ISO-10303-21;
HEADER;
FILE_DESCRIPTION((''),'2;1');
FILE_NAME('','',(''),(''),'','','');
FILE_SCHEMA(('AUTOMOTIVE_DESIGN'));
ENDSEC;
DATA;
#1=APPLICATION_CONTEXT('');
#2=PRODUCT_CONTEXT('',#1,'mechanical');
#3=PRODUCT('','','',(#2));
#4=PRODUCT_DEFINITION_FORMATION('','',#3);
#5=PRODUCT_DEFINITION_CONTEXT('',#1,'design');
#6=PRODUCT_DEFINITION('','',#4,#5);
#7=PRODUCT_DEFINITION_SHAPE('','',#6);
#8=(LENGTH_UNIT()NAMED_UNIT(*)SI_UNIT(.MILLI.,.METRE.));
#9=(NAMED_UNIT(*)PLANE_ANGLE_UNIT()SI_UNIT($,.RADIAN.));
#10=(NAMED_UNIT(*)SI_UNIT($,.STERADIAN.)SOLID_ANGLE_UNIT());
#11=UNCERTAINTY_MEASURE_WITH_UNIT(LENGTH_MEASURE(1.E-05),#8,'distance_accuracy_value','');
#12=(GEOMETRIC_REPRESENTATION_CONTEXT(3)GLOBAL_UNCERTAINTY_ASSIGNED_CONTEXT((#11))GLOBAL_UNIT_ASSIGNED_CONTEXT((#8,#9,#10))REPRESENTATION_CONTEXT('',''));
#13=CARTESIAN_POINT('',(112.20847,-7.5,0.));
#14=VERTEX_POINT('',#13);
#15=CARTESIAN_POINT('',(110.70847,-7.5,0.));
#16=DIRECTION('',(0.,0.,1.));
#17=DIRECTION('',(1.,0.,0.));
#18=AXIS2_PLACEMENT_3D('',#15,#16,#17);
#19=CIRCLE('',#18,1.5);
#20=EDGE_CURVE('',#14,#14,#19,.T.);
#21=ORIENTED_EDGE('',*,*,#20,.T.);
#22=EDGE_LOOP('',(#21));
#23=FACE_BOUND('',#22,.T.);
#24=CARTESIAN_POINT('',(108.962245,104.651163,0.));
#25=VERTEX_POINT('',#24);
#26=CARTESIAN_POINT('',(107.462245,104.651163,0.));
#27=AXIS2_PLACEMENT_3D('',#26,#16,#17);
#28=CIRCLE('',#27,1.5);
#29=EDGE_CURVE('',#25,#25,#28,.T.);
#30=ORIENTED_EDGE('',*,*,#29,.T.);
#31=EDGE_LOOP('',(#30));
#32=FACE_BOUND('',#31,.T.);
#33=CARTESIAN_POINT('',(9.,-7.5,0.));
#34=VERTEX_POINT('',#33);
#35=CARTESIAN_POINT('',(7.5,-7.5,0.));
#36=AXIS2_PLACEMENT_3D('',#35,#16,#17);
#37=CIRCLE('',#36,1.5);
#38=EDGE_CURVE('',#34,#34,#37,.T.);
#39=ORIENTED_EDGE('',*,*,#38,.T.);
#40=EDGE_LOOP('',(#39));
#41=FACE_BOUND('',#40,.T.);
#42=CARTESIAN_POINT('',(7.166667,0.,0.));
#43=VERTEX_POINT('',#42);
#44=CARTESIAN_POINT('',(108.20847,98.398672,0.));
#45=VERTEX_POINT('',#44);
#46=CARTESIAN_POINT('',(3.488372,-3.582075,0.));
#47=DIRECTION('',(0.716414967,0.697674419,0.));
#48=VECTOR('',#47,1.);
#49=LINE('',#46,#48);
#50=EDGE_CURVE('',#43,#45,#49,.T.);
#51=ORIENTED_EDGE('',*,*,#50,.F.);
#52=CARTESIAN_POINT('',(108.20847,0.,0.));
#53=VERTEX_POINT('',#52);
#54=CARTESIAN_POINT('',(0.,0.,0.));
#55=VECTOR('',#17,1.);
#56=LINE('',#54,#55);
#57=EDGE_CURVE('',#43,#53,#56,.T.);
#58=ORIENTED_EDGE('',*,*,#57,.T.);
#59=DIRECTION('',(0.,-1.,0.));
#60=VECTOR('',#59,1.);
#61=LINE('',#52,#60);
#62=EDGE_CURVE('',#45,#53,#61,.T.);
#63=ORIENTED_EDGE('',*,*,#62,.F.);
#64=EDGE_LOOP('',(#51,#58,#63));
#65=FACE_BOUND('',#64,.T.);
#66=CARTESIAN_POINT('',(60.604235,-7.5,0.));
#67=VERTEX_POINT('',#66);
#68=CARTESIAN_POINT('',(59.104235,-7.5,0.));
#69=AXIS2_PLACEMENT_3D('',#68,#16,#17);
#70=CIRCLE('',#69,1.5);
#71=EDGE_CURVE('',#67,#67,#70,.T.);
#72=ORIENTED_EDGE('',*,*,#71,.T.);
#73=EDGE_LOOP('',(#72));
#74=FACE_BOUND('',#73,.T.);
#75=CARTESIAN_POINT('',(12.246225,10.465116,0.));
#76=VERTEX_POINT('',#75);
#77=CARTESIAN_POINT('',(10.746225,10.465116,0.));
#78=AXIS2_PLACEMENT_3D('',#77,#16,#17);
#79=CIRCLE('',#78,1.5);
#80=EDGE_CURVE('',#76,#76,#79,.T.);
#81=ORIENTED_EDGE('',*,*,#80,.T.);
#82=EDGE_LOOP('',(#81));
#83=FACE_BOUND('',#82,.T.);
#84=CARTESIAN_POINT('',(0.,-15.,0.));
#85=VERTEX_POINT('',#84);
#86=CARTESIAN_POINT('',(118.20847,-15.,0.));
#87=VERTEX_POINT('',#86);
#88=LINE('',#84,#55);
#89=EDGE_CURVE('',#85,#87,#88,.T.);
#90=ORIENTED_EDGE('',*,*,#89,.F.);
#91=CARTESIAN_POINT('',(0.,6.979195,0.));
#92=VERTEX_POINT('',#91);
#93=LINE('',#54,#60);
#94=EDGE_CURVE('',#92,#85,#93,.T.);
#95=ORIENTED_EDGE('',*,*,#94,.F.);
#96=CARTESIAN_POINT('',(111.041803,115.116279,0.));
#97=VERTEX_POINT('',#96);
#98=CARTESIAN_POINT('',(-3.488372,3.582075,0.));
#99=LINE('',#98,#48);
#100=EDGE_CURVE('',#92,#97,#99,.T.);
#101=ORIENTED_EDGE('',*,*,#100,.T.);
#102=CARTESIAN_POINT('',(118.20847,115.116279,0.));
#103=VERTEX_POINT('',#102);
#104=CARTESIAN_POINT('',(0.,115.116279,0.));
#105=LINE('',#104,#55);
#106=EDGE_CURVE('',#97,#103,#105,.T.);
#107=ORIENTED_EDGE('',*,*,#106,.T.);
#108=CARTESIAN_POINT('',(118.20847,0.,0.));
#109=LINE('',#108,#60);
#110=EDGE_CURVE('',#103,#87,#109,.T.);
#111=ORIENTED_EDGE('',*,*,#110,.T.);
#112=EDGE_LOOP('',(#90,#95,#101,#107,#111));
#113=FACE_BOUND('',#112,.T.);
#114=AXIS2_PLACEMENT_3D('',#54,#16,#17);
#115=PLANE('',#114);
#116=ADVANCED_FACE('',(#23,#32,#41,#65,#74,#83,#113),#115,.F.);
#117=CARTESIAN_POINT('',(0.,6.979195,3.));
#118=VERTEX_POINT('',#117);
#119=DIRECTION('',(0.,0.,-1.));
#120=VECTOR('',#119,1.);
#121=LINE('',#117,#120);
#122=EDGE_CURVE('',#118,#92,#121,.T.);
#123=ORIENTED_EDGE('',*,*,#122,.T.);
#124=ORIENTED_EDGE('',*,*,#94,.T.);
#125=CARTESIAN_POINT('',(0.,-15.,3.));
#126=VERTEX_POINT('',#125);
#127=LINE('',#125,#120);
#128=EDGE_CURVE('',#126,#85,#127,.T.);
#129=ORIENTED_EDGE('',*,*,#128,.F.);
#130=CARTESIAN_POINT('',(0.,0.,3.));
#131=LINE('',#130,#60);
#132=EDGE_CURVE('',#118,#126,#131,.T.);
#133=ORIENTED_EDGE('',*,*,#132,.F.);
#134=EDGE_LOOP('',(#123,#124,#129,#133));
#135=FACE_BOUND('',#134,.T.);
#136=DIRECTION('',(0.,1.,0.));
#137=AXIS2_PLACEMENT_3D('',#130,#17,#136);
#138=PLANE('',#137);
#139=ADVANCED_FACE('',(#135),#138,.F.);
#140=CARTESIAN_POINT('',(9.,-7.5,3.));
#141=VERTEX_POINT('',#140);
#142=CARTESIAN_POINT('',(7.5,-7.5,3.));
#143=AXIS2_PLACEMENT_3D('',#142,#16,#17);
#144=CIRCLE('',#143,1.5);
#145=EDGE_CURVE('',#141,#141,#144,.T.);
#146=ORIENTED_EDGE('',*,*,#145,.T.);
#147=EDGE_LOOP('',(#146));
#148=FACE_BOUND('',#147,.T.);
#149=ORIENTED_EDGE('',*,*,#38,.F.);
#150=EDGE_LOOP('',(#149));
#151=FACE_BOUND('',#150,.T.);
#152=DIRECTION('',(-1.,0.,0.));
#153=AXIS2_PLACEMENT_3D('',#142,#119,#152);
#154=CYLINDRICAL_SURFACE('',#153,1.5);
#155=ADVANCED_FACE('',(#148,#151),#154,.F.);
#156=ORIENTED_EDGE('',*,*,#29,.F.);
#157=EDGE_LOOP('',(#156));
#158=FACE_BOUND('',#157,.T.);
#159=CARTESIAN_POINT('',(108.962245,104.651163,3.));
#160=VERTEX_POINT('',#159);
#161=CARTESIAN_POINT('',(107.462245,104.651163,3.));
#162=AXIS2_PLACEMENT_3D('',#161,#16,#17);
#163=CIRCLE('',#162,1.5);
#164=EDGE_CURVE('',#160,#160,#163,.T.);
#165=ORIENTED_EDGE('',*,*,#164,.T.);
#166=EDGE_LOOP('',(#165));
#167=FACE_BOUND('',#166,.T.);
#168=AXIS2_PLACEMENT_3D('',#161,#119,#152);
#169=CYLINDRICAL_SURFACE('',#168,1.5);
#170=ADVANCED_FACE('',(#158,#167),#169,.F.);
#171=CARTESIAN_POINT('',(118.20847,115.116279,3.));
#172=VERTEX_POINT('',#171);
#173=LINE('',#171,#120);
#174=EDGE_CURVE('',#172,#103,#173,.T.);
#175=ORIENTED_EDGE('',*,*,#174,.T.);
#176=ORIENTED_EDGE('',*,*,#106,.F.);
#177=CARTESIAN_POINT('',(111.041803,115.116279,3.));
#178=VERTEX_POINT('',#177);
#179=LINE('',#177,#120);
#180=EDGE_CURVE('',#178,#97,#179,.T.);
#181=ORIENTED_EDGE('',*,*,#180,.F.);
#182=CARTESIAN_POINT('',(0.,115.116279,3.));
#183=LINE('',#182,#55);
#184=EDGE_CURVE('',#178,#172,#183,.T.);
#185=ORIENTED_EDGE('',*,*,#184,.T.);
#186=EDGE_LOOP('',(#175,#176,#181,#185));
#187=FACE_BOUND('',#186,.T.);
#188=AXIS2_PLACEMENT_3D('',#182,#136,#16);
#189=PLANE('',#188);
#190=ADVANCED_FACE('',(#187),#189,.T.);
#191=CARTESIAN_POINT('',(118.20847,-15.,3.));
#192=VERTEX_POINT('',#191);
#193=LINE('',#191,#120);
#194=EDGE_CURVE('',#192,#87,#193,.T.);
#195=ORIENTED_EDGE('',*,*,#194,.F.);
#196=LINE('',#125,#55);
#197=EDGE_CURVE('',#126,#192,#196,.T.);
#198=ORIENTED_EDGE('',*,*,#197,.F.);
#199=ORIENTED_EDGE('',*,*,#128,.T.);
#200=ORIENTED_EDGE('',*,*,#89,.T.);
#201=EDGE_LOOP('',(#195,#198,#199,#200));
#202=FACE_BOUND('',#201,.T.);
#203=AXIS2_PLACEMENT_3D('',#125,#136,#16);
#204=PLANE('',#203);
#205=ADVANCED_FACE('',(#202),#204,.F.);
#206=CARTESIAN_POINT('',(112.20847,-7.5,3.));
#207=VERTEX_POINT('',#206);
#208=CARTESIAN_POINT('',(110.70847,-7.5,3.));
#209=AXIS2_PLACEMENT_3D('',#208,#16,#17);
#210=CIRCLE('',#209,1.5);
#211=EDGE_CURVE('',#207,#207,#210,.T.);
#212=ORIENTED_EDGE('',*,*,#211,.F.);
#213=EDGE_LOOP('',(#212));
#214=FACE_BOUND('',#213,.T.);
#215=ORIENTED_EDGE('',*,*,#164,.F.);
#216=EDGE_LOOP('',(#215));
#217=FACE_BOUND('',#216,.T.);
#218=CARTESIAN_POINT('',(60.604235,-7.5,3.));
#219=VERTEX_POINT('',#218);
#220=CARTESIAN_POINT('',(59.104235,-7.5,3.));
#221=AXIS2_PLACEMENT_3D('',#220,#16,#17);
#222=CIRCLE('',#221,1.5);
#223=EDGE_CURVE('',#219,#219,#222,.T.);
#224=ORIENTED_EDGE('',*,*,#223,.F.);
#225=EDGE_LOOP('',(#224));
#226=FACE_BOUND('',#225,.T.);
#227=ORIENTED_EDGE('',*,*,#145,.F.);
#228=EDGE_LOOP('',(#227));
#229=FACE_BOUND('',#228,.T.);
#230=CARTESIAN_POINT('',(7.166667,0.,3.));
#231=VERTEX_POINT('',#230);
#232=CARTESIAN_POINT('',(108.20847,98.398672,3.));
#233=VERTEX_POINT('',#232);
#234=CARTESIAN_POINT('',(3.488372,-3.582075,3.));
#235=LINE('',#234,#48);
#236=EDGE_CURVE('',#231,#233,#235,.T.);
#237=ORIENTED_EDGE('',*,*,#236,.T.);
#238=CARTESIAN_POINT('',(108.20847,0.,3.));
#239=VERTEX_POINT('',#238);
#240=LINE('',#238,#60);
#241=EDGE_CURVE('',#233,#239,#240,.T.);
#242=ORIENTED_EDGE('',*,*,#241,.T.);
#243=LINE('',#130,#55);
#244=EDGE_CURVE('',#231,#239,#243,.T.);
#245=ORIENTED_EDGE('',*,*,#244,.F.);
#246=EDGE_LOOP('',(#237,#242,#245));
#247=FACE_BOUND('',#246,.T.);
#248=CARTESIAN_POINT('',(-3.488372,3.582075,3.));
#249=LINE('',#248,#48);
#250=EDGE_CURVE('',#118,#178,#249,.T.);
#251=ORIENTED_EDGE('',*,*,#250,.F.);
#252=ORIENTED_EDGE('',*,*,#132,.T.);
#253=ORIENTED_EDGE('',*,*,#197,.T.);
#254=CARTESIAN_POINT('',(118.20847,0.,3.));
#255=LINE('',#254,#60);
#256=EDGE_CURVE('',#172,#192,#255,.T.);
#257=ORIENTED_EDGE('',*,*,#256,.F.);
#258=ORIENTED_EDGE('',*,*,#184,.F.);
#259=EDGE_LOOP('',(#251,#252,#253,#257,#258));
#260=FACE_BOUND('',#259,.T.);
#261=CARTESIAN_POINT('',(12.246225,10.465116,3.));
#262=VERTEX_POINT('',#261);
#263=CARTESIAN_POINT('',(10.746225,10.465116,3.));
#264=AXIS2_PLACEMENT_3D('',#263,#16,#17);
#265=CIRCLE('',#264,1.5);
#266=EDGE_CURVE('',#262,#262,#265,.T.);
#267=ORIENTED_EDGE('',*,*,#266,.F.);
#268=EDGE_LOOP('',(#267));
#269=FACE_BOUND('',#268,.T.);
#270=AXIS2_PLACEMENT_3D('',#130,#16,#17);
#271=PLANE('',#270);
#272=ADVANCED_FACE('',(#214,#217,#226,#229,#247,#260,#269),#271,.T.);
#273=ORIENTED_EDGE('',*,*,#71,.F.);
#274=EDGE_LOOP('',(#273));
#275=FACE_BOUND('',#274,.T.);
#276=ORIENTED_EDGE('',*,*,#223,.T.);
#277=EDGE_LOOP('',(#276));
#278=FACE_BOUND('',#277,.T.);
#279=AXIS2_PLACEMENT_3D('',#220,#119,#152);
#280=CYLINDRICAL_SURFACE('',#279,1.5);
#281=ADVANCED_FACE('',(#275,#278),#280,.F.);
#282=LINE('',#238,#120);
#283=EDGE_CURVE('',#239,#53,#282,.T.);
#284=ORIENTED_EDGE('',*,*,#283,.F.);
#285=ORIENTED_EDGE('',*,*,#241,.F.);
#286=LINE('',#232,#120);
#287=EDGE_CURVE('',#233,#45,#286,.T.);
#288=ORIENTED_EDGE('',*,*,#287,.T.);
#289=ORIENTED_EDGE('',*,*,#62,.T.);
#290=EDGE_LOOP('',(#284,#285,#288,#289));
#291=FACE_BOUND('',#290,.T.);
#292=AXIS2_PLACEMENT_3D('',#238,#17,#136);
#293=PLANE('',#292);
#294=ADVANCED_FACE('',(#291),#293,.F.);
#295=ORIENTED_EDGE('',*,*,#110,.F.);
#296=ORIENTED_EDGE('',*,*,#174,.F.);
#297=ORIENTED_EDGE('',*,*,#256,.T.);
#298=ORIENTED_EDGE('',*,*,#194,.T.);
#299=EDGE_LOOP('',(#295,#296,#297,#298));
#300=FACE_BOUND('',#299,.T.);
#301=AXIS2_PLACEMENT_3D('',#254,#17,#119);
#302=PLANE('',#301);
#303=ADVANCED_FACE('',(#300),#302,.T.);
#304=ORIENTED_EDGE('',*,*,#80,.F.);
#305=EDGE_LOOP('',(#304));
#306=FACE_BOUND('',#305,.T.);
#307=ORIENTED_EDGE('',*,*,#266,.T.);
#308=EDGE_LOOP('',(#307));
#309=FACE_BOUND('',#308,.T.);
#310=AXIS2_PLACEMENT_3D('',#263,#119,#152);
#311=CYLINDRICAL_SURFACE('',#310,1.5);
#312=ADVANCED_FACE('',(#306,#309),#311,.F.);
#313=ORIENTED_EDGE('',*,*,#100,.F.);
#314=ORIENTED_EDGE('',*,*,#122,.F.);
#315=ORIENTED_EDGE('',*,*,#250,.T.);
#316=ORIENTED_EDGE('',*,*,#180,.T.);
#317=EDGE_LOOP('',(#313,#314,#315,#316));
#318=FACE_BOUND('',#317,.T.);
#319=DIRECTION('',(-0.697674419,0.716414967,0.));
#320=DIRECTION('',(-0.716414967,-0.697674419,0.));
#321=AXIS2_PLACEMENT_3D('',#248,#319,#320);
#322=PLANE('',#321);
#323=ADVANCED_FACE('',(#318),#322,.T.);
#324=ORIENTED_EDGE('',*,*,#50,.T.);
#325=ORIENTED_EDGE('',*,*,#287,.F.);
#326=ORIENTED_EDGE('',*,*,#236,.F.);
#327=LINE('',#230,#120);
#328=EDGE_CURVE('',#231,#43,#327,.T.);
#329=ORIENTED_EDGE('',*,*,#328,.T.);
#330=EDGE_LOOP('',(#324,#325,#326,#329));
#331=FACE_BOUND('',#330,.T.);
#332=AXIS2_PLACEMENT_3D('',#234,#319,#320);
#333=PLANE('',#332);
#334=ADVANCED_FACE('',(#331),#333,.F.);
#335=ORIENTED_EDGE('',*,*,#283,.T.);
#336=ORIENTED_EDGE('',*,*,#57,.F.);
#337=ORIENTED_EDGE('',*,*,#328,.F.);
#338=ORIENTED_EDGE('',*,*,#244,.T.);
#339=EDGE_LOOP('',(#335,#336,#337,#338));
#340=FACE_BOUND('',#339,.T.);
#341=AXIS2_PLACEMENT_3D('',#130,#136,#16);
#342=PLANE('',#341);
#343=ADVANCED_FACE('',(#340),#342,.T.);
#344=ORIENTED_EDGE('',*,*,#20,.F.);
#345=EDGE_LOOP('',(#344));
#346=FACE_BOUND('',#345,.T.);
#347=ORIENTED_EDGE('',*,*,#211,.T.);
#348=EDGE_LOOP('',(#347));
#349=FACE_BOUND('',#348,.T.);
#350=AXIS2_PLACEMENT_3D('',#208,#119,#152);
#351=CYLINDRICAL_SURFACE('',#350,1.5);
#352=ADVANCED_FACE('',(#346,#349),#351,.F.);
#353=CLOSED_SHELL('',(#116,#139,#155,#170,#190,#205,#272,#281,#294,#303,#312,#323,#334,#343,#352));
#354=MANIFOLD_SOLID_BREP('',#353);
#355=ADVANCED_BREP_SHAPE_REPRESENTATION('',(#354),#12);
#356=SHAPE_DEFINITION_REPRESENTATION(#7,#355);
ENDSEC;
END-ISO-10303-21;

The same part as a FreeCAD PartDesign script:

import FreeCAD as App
import Part
import Sketcher

V = App.Vector

doc = App.newDocument("Part")
body = doc.addObject("PartDesign::Body", "Body")

# Sketch on XY plane
sketch1 = body.newObject("Sketcher::SketchObject", "Sketch")
sketch1.AttachmentSupport = (doc.getObject("XY_Plane"), [""])
sketch1.MapMode = "FlatFace"
sketch1.addGeometry([
    Part.LineSegment(V(0, 7, 0), V(0, -15, 0)),  # 0
    Part.LineSegment(V(0, -15, 0), V(118.2, -15, 0)),  # 1
    Part.LineSegment(V(118.2, -15, 0), V(118.2, 115.1, 0)),  # 2
    Part.LineSegment(V(118.2, 115.1, 0), V(111, 115.1, 0)),  # 3
    Part.LineSegment(V(111, 115.1, 0), V(0, 7, 0)),  # 4
    Part.Circle(V(7.5, -7.5, 0), V(0, 0, 1), 1.5),  # 5
    Part.Circle(V(10.7, 10.5, 0), V(0, 0, 1), 1.5),  # 6
    Part.Circle(V(59.1, -7.5, 0), V(0, 0, 1), 1.5),  # 7
    Part.Circle(V(110.7, -7.5, 0), V(0, 0, 1), 1.5),  # 8
    Part.LineSegment(V(108.2, 98.4, 0), V(108.2, 0, 0)),  # 9
    Part.LineSegment(V(108.2, 0, 0), V(7.2, 0, 0)),  # 10
    Part.LineSegment(V(7.2, 0, 0), V(108.2, 98.4, 0)),  # 11
    Part.Circle(V(107.5, 104.7, 0), V(0, 0, 1), 1.5),  # 12
], False)
sketch1.addConstraint([
    Sketcher.Constraint("Coincident", 0, 2, 1, 1),
    Sketcher.Constraint("Coincident", 1, 2, 2, 1),
    Sketcher.Constraint("Coincident", 2, 2, 3, 1),
    Sketcher.Constraint("Coincident", 3, 2, 4, 1),
    Sketcher.Constraint("Coincident", 4, 2, 0, 1),
    Sketcher.Constraint("Coincident", 9, 2, 10, 1),
    Sketcher.Constraint("Coincident", 10, 2, 11, 1),
    Sketcher.Constraint("Coincident", 11, 2, 9, 1),
    Sketcher.Constraint("Vertical", 0),
    Sketcher.Constraint("Horizontal", 1),
    Sketcher.Constraint("Vertical", 2),
    Sketcher.Constraint("Horizontal", 3),
    Sketcher.Constraint("Vertical", 9),
    Sketcher.Constraint("Horizontal", 10),
    Sketcher.Constraint("Equal", 5, 6),
    Sketcher.Constraint("Equal", 6, 7),
    Sketcher.Constraint("Equal", 7, 8),
    Sketcher.Constraint("Equal", 8, 12),
    Sketcher.Constraint("PointOnObject", 0, 2, -2),
    Sketcher.Constraint("PointOnObject", 9, 2, -1),
    Sketcher.Constraint("Parallel", 4, 11),
    Sketcher.Constraint("Horizontal", 5, 3, 7, 3),
    Sketcher.Constraint("Horizontal", 7, 3, 8, 3),
    Sketcher.Constraint("Diameter", 5, 3.0),
    Sketcher.Constraint("DistanceY", 0, 2, -1, 1, 15.0),
    Sketcher.Constraint("DistanceX", 9, 2, 1, 2, 10.0),
    Sketcher.Constraint("DistanceX", -1, 1, 5, 3, 7.5),
    Sketcher.Constraint("DistanceY", 5, 3, -1, 1, 7.5),
    Sketcher.Constraint("DistanceX", 8, 3, 1, 2, 7.5),
    Sketcher.Constraint("DistanceX", 1, 1, 1, 2, 118.20847),
    Sketcher.Constraint("DistanceY", 2, 1, 2, 2, 130.116279),
    Sketcher.Constraint("DistanceY", 9, 2, 9, 1, 98.398672),
    Sketcher.Constraint("DistanceX", 3, 2, 3, 1, 7.166667),
    Sketcher.Constraint("DistanceX", 10, 2, 10, 1, 101.041803),
    Sketcher.Constraint("DistanceX", 6, 3, 7, 3, 48.35801),
    Sketcher.Constraint("DistanceX", 7, 3, 12, 3, 48.35801),
    Sketcher.Constraint("DistanceX", 7, 3, 3, 2, 51.937568),
    Sketcher.Constraint("DistanceY", 4, 2, 6, 3, 3.485921),
    Sketcher.Constraint("DistanceY", 11, 2, 12, 3, 6.252491),
])
pad1 = body.newObject("PartDesign::Pad", "Pad")
pad1.Profile = sketch1
pad1.Length = 3

doc.recompute()
